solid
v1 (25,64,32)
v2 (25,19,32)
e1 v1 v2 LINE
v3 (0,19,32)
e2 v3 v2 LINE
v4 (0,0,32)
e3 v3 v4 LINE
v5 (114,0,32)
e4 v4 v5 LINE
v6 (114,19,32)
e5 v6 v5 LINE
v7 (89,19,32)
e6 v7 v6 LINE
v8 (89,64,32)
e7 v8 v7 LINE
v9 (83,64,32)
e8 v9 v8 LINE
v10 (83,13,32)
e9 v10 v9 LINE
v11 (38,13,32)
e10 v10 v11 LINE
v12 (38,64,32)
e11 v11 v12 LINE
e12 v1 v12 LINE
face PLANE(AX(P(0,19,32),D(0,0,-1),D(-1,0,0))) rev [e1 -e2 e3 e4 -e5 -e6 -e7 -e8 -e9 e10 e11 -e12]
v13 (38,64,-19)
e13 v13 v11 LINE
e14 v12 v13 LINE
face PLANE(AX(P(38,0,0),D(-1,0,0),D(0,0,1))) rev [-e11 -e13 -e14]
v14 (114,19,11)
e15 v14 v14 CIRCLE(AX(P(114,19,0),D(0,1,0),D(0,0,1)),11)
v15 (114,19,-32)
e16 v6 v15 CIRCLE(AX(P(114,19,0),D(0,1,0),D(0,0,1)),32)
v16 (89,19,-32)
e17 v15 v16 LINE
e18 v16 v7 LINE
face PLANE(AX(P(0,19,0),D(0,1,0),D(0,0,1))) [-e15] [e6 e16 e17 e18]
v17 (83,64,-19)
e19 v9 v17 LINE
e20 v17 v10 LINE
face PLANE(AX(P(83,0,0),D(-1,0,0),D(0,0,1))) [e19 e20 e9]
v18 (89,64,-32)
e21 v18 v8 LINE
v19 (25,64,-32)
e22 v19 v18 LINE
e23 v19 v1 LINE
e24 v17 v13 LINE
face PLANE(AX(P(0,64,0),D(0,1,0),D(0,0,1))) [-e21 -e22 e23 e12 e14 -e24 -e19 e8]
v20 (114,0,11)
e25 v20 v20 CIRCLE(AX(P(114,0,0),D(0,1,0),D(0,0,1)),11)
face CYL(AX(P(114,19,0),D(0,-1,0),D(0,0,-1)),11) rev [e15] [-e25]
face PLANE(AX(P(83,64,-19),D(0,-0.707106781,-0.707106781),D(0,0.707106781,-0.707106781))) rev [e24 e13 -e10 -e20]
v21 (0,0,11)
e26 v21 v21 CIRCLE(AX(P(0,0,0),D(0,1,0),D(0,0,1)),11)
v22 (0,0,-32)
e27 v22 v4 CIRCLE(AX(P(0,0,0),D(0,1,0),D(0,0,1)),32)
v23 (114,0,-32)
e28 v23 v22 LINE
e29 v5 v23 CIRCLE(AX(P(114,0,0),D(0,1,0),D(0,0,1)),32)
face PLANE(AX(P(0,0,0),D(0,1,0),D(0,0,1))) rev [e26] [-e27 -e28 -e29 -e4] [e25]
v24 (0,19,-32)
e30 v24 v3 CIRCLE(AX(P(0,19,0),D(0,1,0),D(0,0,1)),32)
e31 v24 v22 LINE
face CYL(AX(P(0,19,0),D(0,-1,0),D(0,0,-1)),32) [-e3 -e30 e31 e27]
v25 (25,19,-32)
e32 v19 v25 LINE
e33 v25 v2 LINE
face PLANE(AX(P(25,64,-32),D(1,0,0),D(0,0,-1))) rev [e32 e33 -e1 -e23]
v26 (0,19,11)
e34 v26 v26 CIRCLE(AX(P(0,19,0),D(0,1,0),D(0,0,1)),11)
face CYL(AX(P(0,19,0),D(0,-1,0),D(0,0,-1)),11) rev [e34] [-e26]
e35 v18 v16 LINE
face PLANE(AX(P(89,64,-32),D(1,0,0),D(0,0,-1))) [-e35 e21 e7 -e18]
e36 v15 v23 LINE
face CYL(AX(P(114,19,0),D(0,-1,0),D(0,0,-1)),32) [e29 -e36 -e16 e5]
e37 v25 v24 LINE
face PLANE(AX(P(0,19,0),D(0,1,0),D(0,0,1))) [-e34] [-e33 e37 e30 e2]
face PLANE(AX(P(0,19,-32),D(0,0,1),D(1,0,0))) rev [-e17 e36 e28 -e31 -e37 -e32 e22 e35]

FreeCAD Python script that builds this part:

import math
import FreeCAD as App
import Part
import Sketcher

V = App.Vector
Q = App.Units.Quantity

doc = App.newDocument("Part")
params = doc.addObject("Spreadsheet::Sheet", "Params")
for row, (alias, value) in enumerate([
    ("sketch1_diameter", "22 mm"),
    ("sketch1_radius", "32 mm"),
    ("sketch1_width", "114 mm"),
    ("pad1_length", "19 mm"),
    ("sketch2_width", "64 mm"),
    ("pad2_length", "45 mm"),
    ("sketch3_width", "51 mm"),
    ("pocket1_length", "45 mm"),
], start=1):
    params.set(f"A{row}", alias)
    params.set(f"B{row}", "=" + value)
    params.setAlias(f"B{row}", alias)

body = doc.addObject("PartDesign::Body", "Body")

# Sketch on XZ plane
sketch1 = body.newObject("Sketcher::SketchObject", "Sketch")
sketch1.AttachmentSupport = (doc.getObject("XZ_Plane"), [""])
sketch1.MapMode = "FlatFace"
sketch1.addGeometry([
    Part.LineSegment(V(114, -32, 0), V(0, -32, 0)),  # 0
    Part.ArcOfCircle(Part.Circle(V(0, 0, 0), V(0, 0, 1), 32), math.radians(90), math.radians(270)),  # 1
    Part.LineSegment(V(0, 32, 0), V(114, 32, 0)),  # 2
    Part.ArcOfCircle(Part.Circle(V(114, 0, 0), V(0, 0, 1), 32), math.radians(-90), math.radians(90)),  # 3
    Part.Circle(V(114, 0, 0), V(0, 0, 1), 11),  # 4
    Part.Circle(V(0, 0, 0), V(0, 0, 1), 11),  # 5
], False)
sketch1.addConstraint([
    Sketcher.Constraint("Tangent", 0, 2, 1, 2),
    Sketcher.Constraint("Tangent", 1, 1, 2, 1),
    Sketcher.Constraint("Tangent", 2, 2, 3, 2),
    Sketcher.Constraint("Tangent", 3, 1, 0, 1),
    Sketcher.Constraint("Horizontal", 0),
    Sketcher.Constraint("Horizontal", 2),
    Sketcher.Constraint("Coincident", 1, 3, -1, 1),
    Sketcher.Constraint("Coincident", 5, 3, -1, 1),
    Sketcher.Constraint("Coincident", 4, 3, 3, 3),
    Sketcher.Constraint("Equal", 4, 5),
    Sketcher.Constraint("Diameter", 4, Q("22 mm")),
    Sketcher.Constraint("Radius", 1, Q("32 mm")),
    Sketcher.Constraint("DistanceX", 0, 2, 0, 1, Q("114 mm")),
])
sketch1.setExpression("Constraints[10]", "Params.sketch1_diameter")
sketch1.setExpression("Constraints[11]", "Params.sketch1_radius")
sketch1.setExpression("Constraints[12]", "Params.sketch1_width")
pad1 = body.newObject("PartDesign::Pad", "Pad")
pad1.Profile = sketch1
pad1.setExpression("Length", "Params.pad1_length")
pad1.Reversed = True

# Sketch on XZ plane
sketch2 = body.newObject("Sketcher::SketchObject", "Sketch001")
sketch2.AttachmentSupport = (doc.getObject("XZ_Plane"), [""])
sketch2.MapMode = "FlatFace"
sketch2.AttachmentOffset = App.Placement(V(0, 0, -19), App.Rotation())
sketch2.addGeometry([
    Part.LineSegment(V(25, -32, 0), V(25, 32, 0)),
    Part.LineSegment(V(25, 32, 0), V(89, 32, 0)),
    Part.LineSegment(V(89, 32, 0), V(89, -32, 0)),
    Part.LineSegment(V(89, -32, 0), V(25, -32, 0)),
], False)
sketch2.addConstraint([
    Sketcher.Constraint("Coincident", 0, 2, 1, 1),
    Sketcher.Constraint("Coincident", 1, 2, 2, 1),
    Sketcher.Constraint("Coincident", 2, 2, 3, 1),
    Sketcher.Constraint("Coincident", 3, 2, 0, 1),
    Sketcher.Constraint("Vertical", 0),
    Sketcher.Constraint("Horizontal", 1),
    Sketcher.Constraint("Vertical", 2),
    Sketcher.Constraint("Horizontal", 3),
    Sketcher.Constraint("Equal", 3, 0),
    Sketcher.Constraint("DistanceX", 1, 1, 1, 2, Q("64 mm")),
    Sketcher.Constraint("DistanceX", -1, 1, 0, 2, Q("25 mm")),
    Sketcher.Constraint("DistanceY", -1, 1, 0, 2, Q("32 mm")),
])
sketch2.setExpression("Constraints[9]", "Params.sketch2_width")
pad2 = body.newObject("PartDesign::Pad", "Pad001")
pad2.Profile = sketch2
pad2.setExpression("Length", "Params.pad2_length")
pad2.Reversed = True

# Sketch on YZ plane
sketch3 = body.newObject("Sketcher::SketchObject", "Sketch002")
sketch3.AttachmentSupport = (doc.getObject("YZ_Plane"), [""])
sketch3.MapMode = "FlatFace"
sketch3.AttachmentOffset = App.Placement(V(0, 0, 38), App.Rotation())
sketch3.addGeometry([
    Part.LineSegment(V(64, 32, 0), V(64, -19, 0)),
    Part.LineSegment(V(64, -19, 0), V(13, 32, 0)),
    Part.LineSegment(V(13, 32, 0), V(64, 32, 0)),
], False)
sketch3.addConstraint([
    Sketcher.Constraint("Coincident", 0, 2, 1, 1),
    Sketcher.Constraint("Coincident", 1, 2, 2, 1),
    Sketcher.Constraint("Coincident", 2, 2, 0, 1),
    Sketcher.Constraint("Vertical", 0),
    Sketcher.Constraint("Horizontal", 2),
    Sketcher.Constraint("Equal", 2, 0),
    Sketcher.Constraint("DistanceX", 2, 1, 2, 2, Q("51 mm")),
    Sketcher.Constraint("DistanceX", -1, 1, 0, 2, Q("64 mm")),
    Sketcher.Constraint("DistanceY", 0, 2, -1, 1, Q("19 mm")),
])
sketch3.setExpression("Constraints[6]", "Params.sketch3_width")
pocket1 = body.newObject("PartDesign::Pocket", "Pocket")
pocket1.Profile = sketch3
pocket1.setExpression("Length", "Params.pocket1_length")
pocket1.Reversed = True

doc.recompute()
